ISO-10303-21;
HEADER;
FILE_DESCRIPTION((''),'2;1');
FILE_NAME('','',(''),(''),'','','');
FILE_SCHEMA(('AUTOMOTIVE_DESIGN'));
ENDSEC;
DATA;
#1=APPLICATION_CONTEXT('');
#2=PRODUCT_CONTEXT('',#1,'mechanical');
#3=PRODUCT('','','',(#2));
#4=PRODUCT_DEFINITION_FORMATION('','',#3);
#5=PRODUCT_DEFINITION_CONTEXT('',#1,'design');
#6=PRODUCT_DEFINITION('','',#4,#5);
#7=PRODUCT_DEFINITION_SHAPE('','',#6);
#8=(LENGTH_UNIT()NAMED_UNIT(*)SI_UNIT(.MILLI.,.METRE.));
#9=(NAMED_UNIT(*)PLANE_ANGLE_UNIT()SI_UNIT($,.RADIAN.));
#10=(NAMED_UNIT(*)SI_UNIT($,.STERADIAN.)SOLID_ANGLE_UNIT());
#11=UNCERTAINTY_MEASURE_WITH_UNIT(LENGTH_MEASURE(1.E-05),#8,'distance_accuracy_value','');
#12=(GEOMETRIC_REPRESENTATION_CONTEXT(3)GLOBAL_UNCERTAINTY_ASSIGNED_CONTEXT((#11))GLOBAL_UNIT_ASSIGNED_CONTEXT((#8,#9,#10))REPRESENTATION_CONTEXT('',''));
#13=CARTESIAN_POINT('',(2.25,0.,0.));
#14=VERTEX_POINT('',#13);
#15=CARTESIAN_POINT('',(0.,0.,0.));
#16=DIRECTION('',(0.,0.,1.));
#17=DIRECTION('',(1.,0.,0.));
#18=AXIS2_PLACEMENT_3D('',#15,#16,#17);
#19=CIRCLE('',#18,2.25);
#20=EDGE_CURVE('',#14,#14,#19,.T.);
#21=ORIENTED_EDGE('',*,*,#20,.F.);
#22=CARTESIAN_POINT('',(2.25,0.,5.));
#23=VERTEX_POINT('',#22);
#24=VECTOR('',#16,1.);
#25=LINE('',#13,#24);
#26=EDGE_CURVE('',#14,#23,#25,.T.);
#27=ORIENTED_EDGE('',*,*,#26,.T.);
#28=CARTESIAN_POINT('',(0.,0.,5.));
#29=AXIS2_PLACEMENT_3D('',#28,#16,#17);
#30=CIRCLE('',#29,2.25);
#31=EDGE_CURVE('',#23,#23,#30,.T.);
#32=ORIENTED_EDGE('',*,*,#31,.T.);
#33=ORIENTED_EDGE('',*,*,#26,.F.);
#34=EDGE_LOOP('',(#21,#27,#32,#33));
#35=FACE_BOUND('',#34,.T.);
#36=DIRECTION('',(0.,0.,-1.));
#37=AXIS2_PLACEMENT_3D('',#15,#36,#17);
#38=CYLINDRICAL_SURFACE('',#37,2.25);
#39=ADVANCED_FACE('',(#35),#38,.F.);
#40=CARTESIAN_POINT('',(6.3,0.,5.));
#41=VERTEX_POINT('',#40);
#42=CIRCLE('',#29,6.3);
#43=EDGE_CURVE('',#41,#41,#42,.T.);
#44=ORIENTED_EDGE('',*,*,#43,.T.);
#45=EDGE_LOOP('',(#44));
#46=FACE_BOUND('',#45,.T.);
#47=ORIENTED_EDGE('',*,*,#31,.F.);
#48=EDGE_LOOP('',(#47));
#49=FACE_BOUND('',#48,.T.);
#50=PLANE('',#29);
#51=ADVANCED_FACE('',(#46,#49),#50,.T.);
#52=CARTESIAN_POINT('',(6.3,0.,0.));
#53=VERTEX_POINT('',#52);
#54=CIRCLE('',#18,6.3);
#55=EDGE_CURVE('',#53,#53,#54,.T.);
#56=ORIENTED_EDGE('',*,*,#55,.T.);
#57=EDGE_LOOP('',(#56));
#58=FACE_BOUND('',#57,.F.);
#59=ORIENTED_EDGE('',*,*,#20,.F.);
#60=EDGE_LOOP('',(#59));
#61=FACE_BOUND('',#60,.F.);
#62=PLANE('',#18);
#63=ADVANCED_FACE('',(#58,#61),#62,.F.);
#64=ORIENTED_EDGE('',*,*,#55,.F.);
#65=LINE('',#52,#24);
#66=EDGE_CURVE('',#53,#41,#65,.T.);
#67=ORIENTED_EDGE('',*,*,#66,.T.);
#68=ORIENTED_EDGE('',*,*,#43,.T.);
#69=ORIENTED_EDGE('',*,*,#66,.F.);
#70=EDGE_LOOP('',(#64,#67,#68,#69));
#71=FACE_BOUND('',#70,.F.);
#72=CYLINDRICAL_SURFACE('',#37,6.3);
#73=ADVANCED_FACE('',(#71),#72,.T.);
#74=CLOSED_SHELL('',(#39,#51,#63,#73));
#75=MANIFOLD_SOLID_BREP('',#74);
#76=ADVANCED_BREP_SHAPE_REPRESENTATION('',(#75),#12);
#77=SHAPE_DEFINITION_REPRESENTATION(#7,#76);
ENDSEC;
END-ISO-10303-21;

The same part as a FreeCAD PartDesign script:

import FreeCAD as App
import Part
import Sketcher
Q = App.Units.Quantity

doc = App.newDocument("Part")
body = doc.addObject("PartDesign::Body", "Body")

sketch1 = body.newObject("Sketcher::SketchObject", "Sketch")
sketch1.AttachmentSupport = (doc.getObject("XY_Plane"), [""])
sketch1.MapMode = "FlatFace"
sketch1.addGeometry([
    Part.Circle(App.Vector(0, 0, 0), App.Vector(0, 0, 1), 6.3),
    Part.Circle(App.Vector(0, 0, 0), App.Vector(0, 0, 1), 2.2),
], False)
sketch1.addConstraint([
    Sketcher.Constraint("Coincident", 0, 3, -1, 1),
    Sketcher.Constraint("Coincident", 1, 3, -1, 1),
    Sketcher.Constraint("Diameter", 0, Q("12.6 mm")),
    Sketcher.Constraint("Diameter", 1, Q("4.5 mm")),
])
pad1 = body.newObject("PartDesign::Pad", "Pad")
pad1.Profile = sketch1
pad1.Length = 5

doc.recompute()
